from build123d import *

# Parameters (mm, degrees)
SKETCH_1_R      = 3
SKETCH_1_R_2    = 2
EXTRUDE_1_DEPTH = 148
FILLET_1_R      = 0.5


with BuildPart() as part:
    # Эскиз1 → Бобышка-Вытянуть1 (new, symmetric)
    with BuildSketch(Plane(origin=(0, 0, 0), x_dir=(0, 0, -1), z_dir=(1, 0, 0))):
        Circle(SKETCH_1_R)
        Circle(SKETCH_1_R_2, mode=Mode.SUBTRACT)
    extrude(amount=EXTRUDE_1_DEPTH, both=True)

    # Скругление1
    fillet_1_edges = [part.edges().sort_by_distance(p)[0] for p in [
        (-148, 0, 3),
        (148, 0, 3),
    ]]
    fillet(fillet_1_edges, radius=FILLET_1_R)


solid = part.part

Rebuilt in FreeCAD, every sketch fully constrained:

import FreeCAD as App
import Part
import Sketcher
from FreeCAD import Vector


def edges_at(feature, points):
    """Names of the edges that pass closest to the given points."""
    edges = feature.Shape.Edges
    near = lambda p: min(range(len(edges)), key=lambda i: edges[i].distToShape(Part.Vertex(*p))[0])
    return sorted({f"Edge{near(p) + 1}" for p in points})

doc = App.newDocument("Part")
body = doc.addObject("PartDesign::Body", "Body")

sketch1 = doc.addObject("Sketcher::SketchObject", "Sketch")
body.addObject(sketch1)
sketch1.AttachmentSupport = (doc.YZ_Plane, [""])
sketch1.MapMode = "FlatFace"
sketch1.addGeometry([
    Part.Circle(Vector(0, 0, 0), Vector(0, 0, 1), 3),
    Part.Circle(Vector(0, 0, 0), Vector(0, 0, 1), 2),
], False)
sketch1.addConstraint([
    Sketcher.Constraint("Coincident", 0, 3, -1, 1),
    Sketcher.Constraint("Coincident", 1, 3, -1, 1),
    Sketcher.Constraint("Diameter", 0, 6.0),
    Sketcher.Constraint("Diameter", 1, 4.0),
])
pad1 = doc.addObject("PartDesign::Pad", "Pad")
body.addObject(pad1)
pad1.Profile = sketch1
pad1.Length = 296
pad1.Midplane = True
doc.recompute()

fillet = doc.addObject("PartDesign::Fillet", "Fillet")
body.addObject(fillet)
fillet.Base = (pad1, edges_at(pad1, [(-148, 0, 3), (148, 0, 3)]))
fillet.Radius = 0.5

doc.recompute()
